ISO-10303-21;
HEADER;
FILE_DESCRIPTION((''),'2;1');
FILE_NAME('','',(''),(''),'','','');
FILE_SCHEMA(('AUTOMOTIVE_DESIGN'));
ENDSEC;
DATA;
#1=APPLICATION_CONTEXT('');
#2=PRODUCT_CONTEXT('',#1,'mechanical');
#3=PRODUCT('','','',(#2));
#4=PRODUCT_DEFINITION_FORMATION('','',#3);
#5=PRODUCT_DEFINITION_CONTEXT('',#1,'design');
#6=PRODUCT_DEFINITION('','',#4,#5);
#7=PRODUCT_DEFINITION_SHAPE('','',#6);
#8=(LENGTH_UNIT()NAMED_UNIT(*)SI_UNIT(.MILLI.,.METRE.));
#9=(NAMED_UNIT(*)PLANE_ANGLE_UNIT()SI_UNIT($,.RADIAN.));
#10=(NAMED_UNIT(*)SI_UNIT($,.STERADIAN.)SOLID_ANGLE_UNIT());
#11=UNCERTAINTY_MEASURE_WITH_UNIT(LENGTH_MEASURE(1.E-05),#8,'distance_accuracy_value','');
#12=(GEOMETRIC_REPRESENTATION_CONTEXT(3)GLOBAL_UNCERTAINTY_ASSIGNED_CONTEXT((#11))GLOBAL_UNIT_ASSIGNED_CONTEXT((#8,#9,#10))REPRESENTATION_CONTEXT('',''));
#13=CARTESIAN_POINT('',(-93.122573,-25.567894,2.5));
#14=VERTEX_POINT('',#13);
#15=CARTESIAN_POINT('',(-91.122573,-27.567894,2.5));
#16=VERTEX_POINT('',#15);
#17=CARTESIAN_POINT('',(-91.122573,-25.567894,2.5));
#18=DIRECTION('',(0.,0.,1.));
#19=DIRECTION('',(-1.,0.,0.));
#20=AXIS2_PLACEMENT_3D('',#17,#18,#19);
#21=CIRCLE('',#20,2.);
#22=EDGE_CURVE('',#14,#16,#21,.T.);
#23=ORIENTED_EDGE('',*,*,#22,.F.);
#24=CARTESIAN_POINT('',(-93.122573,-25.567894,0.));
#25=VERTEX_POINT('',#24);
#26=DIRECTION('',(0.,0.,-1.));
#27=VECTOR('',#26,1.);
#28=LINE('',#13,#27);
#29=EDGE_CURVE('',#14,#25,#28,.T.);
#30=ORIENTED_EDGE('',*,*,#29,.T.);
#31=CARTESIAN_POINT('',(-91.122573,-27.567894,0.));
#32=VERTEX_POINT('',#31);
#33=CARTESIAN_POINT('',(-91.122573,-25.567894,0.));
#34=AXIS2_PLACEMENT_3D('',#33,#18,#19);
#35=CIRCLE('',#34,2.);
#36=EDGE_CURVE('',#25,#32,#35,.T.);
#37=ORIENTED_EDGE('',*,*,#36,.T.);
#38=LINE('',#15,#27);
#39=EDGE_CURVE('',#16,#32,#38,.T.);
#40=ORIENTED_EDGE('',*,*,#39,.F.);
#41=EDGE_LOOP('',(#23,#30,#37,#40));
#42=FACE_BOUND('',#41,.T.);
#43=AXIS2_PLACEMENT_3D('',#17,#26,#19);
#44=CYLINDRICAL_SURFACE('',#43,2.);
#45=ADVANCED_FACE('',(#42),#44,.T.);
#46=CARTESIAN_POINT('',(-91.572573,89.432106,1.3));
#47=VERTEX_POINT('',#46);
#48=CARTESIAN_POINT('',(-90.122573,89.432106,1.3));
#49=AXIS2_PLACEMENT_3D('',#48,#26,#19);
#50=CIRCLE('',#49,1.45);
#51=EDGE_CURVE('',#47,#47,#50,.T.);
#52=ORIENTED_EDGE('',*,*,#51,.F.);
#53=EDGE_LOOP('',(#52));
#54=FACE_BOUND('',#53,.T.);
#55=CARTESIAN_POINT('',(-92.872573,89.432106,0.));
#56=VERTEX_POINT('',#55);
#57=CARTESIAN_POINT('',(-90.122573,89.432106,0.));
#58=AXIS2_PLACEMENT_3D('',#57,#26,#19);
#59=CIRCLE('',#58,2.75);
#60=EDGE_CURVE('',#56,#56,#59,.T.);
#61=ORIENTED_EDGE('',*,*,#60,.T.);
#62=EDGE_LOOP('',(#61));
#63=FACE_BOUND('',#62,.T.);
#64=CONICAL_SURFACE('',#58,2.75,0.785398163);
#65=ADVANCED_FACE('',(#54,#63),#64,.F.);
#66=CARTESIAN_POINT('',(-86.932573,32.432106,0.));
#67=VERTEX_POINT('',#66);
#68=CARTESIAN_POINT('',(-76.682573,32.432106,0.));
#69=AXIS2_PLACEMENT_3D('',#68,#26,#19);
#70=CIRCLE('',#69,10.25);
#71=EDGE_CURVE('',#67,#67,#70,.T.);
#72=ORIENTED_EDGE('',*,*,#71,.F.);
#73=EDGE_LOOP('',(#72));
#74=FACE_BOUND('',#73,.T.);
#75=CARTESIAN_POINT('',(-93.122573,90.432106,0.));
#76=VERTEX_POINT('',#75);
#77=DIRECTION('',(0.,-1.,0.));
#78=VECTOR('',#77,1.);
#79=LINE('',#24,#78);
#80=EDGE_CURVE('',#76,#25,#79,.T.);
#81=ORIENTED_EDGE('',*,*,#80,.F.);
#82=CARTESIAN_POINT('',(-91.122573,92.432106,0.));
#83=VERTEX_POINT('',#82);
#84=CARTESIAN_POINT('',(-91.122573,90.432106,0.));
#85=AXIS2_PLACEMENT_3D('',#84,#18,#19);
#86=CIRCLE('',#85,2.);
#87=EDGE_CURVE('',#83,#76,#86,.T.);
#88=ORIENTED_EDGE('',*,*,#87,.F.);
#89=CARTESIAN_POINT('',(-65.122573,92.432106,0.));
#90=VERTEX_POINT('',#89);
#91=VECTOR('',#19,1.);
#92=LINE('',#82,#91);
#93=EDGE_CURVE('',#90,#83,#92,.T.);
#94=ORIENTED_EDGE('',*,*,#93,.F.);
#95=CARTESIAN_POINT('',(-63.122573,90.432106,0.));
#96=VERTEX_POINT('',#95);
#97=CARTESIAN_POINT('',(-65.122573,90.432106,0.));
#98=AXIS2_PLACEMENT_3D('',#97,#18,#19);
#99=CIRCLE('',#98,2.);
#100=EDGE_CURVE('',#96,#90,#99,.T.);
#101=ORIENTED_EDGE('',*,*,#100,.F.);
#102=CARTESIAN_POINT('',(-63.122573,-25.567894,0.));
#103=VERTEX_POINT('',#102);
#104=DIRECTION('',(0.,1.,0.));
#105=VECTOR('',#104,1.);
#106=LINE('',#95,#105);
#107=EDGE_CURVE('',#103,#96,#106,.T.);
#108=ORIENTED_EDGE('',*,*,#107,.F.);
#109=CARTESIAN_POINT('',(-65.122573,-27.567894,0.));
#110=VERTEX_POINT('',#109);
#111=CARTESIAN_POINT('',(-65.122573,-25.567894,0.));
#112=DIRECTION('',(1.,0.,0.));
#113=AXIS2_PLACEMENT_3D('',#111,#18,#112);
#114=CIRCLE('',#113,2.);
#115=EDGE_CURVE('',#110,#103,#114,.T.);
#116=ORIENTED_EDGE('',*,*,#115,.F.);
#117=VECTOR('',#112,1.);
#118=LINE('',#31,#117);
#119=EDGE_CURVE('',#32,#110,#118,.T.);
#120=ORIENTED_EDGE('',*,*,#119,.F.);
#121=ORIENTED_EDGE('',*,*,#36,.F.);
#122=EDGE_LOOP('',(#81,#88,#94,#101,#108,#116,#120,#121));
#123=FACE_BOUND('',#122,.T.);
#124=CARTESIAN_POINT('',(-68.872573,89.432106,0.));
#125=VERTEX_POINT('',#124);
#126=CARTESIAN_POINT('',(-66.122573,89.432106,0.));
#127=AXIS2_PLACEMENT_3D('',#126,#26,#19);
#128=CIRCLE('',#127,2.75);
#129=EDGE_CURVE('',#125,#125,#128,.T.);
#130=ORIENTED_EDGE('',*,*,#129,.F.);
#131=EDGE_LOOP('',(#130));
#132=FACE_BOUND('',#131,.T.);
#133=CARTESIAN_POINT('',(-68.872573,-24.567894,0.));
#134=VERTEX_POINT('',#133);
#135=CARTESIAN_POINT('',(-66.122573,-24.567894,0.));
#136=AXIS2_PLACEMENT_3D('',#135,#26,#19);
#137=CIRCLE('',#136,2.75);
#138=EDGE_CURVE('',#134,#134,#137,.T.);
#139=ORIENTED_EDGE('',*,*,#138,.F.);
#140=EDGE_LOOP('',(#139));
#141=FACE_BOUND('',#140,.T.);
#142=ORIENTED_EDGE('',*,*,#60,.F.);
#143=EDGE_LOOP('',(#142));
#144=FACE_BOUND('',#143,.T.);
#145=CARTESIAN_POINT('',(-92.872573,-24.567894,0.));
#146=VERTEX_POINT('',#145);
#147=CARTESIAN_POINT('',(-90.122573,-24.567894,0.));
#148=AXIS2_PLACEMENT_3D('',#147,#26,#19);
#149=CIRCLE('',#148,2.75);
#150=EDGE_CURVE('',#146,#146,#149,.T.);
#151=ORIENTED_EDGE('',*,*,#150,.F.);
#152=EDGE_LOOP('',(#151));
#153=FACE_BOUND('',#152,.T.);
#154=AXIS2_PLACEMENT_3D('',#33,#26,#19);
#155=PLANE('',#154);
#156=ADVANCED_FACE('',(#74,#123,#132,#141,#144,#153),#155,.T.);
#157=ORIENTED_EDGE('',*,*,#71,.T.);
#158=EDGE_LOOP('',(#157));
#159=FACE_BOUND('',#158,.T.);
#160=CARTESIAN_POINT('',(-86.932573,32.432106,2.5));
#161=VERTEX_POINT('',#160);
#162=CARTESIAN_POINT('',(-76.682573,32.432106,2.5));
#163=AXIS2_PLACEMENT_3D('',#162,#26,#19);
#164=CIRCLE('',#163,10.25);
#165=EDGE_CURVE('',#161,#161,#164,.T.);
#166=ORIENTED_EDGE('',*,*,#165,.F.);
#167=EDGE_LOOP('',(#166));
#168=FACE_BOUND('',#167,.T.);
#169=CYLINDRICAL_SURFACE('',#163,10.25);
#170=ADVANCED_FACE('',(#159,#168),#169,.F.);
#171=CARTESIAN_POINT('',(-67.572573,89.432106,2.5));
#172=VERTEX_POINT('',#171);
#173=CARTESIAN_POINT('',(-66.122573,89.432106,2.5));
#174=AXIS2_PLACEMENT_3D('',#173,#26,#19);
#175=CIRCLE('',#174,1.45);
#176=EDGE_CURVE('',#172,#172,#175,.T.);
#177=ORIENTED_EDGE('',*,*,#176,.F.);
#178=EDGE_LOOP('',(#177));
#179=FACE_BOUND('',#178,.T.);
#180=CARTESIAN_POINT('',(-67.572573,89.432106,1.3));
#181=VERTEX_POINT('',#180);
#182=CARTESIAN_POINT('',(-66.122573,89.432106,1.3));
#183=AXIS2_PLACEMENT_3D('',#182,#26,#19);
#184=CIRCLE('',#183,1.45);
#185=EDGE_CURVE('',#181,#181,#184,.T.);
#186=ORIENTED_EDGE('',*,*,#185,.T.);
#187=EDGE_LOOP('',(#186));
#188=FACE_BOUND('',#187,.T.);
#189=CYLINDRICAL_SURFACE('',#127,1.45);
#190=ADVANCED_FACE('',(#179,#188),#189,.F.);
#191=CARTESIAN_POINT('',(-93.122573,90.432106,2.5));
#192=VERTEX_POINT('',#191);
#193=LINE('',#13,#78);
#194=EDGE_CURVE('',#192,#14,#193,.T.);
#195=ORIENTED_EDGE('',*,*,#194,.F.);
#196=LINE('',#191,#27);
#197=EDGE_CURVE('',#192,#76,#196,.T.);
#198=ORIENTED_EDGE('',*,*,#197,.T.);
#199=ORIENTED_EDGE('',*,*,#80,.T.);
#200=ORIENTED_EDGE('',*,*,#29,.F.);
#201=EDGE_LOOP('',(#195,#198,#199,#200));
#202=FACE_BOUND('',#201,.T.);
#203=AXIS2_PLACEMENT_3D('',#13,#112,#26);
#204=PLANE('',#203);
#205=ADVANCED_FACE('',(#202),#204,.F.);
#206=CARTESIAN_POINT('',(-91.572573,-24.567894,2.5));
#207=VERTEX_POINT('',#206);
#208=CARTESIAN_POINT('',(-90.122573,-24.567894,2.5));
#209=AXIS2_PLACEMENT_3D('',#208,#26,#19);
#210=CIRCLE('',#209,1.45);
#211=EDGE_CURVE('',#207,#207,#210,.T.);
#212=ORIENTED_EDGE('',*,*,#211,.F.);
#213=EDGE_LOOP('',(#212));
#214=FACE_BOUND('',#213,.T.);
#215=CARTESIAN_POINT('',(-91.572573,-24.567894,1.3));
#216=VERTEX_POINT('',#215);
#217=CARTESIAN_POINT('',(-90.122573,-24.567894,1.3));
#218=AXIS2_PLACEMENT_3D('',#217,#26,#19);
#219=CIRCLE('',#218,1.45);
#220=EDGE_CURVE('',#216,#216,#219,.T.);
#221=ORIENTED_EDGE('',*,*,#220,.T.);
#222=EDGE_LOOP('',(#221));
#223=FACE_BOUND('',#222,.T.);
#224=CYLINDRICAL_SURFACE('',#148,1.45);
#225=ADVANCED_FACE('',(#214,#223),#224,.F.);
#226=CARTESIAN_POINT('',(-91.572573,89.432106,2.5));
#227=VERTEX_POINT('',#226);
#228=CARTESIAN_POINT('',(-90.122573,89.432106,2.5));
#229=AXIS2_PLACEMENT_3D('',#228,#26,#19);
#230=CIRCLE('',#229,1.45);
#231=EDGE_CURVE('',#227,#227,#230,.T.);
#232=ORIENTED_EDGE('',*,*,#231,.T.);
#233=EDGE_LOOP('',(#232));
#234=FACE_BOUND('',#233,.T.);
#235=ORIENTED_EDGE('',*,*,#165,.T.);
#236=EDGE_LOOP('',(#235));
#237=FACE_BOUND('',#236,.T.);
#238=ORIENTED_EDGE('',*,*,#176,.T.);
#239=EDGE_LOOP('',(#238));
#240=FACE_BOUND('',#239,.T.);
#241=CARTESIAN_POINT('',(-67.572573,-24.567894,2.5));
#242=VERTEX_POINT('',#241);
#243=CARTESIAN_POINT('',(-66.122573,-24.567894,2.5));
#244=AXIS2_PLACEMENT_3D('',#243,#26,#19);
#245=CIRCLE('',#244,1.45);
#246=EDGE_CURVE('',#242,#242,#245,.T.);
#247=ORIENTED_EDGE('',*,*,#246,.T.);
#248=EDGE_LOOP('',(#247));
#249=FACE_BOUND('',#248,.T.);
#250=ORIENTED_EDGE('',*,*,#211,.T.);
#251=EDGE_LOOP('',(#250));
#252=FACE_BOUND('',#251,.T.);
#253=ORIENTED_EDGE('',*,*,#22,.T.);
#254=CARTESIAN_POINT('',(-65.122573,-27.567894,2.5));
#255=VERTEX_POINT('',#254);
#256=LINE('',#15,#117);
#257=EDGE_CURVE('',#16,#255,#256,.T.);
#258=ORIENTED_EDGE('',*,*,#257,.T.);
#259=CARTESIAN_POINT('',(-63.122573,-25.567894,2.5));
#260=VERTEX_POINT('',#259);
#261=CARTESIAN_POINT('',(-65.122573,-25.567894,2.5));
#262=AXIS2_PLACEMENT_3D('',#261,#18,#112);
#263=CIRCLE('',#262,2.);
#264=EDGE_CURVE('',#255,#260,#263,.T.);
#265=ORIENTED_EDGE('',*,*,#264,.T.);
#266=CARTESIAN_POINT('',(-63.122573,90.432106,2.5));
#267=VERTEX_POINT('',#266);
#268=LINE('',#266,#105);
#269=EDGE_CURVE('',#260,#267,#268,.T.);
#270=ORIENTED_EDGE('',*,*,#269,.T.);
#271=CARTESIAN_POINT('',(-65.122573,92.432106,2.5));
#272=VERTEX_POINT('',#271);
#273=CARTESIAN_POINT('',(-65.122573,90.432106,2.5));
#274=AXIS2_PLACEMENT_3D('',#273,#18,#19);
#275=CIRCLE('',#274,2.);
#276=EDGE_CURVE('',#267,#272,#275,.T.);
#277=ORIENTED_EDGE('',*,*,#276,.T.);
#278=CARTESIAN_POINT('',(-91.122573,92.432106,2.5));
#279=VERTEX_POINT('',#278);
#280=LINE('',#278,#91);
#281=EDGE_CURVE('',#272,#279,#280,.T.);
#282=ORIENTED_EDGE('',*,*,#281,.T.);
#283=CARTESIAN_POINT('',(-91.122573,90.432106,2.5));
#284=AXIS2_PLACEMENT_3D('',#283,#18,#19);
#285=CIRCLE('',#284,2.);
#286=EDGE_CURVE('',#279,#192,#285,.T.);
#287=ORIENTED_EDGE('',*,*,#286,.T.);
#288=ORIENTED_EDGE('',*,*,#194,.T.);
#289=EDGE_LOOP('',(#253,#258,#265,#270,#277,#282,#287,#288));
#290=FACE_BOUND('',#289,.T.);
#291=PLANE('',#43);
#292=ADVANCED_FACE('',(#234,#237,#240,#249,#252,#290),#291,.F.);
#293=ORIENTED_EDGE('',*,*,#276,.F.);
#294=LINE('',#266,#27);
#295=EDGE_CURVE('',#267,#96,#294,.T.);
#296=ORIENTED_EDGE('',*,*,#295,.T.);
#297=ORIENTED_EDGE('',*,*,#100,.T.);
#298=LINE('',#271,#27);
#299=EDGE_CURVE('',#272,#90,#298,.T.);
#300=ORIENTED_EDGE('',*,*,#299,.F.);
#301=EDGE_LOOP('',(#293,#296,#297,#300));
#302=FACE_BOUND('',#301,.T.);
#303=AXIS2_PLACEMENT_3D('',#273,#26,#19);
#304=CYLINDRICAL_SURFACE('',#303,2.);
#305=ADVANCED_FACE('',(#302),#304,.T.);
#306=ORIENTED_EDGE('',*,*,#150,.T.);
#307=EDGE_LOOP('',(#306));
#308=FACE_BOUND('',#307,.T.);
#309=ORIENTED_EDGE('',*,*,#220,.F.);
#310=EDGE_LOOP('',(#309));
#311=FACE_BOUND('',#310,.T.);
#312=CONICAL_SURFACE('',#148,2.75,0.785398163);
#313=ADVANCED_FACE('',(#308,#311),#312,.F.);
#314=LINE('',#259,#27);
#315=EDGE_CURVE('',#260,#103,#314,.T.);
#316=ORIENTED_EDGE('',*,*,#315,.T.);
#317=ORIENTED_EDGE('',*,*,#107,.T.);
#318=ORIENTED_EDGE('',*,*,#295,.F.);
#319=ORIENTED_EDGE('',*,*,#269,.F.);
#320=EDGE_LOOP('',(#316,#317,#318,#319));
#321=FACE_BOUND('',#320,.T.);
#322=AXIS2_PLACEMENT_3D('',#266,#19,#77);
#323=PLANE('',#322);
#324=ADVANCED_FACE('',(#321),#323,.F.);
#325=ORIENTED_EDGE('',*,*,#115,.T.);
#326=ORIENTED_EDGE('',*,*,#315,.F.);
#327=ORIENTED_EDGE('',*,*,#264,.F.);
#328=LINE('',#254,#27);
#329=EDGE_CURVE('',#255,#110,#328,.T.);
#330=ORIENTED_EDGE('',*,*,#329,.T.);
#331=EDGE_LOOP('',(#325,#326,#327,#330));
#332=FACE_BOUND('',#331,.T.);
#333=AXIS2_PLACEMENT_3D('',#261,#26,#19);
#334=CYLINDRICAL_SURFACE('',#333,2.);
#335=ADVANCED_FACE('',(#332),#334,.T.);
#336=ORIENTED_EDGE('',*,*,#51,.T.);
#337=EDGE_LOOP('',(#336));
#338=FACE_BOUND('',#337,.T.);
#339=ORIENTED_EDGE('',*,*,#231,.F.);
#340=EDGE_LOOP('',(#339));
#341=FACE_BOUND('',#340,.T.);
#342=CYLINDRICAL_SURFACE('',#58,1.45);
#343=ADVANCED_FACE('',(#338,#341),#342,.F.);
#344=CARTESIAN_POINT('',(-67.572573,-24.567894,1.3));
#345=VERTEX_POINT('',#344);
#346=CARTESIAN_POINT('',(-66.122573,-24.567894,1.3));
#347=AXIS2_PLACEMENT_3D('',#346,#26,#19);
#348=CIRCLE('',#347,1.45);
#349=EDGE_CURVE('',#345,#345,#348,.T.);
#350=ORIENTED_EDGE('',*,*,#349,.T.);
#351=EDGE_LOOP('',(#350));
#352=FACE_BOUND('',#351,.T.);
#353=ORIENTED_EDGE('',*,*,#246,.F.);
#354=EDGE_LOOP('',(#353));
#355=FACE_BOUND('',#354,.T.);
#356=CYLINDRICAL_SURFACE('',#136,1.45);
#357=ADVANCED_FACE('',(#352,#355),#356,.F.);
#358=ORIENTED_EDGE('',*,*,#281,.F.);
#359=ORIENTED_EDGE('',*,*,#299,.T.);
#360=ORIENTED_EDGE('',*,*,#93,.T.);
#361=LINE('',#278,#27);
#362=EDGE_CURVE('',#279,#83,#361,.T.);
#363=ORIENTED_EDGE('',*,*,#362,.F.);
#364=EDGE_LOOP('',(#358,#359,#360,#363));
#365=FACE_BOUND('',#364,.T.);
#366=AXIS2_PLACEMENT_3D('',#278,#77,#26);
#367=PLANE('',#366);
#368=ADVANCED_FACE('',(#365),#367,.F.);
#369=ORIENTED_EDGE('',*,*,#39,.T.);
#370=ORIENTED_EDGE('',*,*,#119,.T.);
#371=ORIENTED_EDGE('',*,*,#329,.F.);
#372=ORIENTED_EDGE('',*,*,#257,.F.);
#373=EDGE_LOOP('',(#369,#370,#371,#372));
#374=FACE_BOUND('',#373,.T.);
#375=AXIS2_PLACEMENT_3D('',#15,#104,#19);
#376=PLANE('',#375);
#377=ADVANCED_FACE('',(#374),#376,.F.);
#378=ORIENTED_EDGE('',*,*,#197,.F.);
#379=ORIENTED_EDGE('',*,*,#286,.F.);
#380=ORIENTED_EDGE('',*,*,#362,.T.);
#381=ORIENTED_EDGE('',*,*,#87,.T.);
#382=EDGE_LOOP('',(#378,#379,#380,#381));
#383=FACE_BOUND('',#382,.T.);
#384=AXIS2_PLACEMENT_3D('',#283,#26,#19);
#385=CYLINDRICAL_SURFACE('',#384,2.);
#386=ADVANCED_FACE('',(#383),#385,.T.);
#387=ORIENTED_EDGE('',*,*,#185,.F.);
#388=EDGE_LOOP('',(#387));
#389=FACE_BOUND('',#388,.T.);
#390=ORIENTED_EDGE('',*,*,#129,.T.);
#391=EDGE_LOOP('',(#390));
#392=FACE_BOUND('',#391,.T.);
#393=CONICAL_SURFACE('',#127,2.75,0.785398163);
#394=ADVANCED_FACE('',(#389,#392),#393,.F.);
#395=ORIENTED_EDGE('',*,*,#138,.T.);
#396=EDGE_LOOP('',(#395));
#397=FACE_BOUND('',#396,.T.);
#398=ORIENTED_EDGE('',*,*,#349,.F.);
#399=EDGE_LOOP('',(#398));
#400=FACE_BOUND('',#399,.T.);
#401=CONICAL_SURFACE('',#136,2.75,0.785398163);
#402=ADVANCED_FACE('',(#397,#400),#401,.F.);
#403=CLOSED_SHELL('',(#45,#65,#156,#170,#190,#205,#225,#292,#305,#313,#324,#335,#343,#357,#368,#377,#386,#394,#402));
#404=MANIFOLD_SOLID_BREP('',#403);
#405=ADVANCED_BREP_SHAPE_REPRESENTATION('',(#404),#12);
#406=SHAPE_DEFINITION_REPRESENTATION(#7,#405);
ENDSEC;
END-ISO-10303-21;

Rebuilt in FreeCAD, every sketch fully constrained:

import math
import FreeCAD as App
import Part
import Sketcher

V = App.Vector
Q = App.Units.Quantity

doc = App.newDocument("Part")
body = doc.addObject("PartDesign::Body", "Body")

# Sketch on XY plane
sketch1 = doc.addObject("Sketcher::SketchObject", "Sketch")
body.addObject(sketch1)
sketch1.AttachmentSupport = (doc.XY_Plane, [""])
sketch1.MapMode = "FlatFace"
sketch1.addGeometry([
    Part.LineSegment(V(-63.122573, -25.567894, 0), V(-63.122573, 90.432106, 0)),  # 0
    Part.ArcOfCircle(Part.Circle(V(-65.122573, 90.432106, 0), V(0, 0, 1), 2), math.radians(0), math.radians(90)),  # 1
    Part.LineSegment(V(-65.122573, 92.432106, 0), V(-91.122573, 92.432106, 0)),  # 2
    Part.ArcOfCircle(Part.Circle(V(-91.122573, 90.432106, 0), V(0, 0, 1), 2), math.radians(90), math.radians(180)),  # 3
    Part.LineSegment(V(-93.122573, 90.432106, 0), V(-93.122573, -25.567894, 0)),  # 4
    Part.ArcOfCircle(Part.Circle(V(-91.122573, -25.567894, 0), V(0, 0, 1), 2), math.radians(180), math.radians(270)),  # 5
    Part.LineSegment(V(-91.122573, -27.567894, 0), V(-65.122573, -27.567894, 0)),  # 6
    Part.ArcOfCircle(Part.Circle(V(-65.122573, -25.567894, 0), V(0, 0, 1), 2), math.radians(-90), math.radians(0)),  # 7
], False)
sketch1.addConstraint([
    Sketcher.Constraint("Tangent", 0, 2, 1, 1),
    Sketcher.Constraint("Tangent", 1, 2, 2, 1),
    Sketcher.Constraint("Tangent", 2, 2, 3, 1),
    Sketcher.Constraint("Tangent", 3, 2, 4, 1),
    Sketcher.Constraint("Tangent", 4, 2, 5, 1),
    Sketcher.Constraint("Tangent", 5, 2, 6, 1),
    Sketcher.Constraint("Tangent", 6, 2, 7, 1),
    Sketcher.Constraint("Tangent", 7, 2, 0, 1),
    Sketcher.Constraint("Vertical", 0),
    Sketcher.Constraint("Horizontal", 2),
    Sketcher.Constraint("Vertical", 4),
    Sketcher.Constraint("Horizontal", 6),
    Sketcher.Constraint("Equal", 1, 3),
    Sketcher.Constraint("Equal", 3, 5),
    Sketcher.Constraint("Equal", 5, 7),
    Sketcher.Constraint("Radius", 1, Q("2 mm")),
    Sketcher.Constraint("DistanceX", 2, 2, 2, 1, Q("26 mm")),
    Sketcher.Constraint("DistanceY", 0, 1, 0, 2, Q("116 mm")),
    Sketcher.Constraint("DistanceX", 1, 3, -1, 1, Q("65.122573 mm")),
    Sketcher.Constraint("DistanceY", -1, 1, 1, 3, Q("90.432106 mm")),
])
pad1 = doc.addObject("PartDesign::Pad", "Pad")
body.addObject(pad1)
pad1.Profile = sketch1
pad1.Length = 2.5

# Sketch on YZ plane
sketch2 = doc.addObject("Sketcher::SketchObject", "Sketch001")
body.addObject(sketch2)
sketch2.AttachmentSupport = (doc.YZ_Plane, [""])
sketch2.MapMode = "FlatFace"
sketch2.AttachmentOffset = App.Placement(V(0, 0, -66.122573), App.Rotation())
sketch2.addGeometry([
    Part.LineSegment(V(89.432106, 2.5, 0), V(89.432106, 0, 0)),  # 0
    Part.LineSegment(V(89.432106, 0, 0), V(92.182106, 0, 0)),  # 1
    Part.LineSegment(V(92.182106, 0, 0), V(90.882106, 1.3, 0)),  # 2
    Part.LineSegment(V(90.882106, 1.3, 0), V(90.882106, 2.5, 0)),  # 3
    Part.LineSegment(V(90.882106, 2.5, 0), V(89.432106, 2.5, 0)),  # 4
], False)
sketch2.addGeometry(Part.LineSegment(V(89.432106, 0, 0), V(89.432106, 2.5, 0)), True)  # axis
sketch2.addConstraint([
    Sketcher.Constraint("Coincident", 0, 2, 1, 1),
    Sketcher.Constraint("Coincident", 1, 2, 2, 1),
    Sketcher.Constraint("Coincident", 2, 2, 3, 1),
    Sketcher.Constraint("Coincident", 3, 2, 4, 1),
    Sketcher.Constraint("Coincident", 4, 2, 0, 1),
    Sketcher.Constraint("Vertical", 0),
    Sketcher.Constraint("Horizontal", 1),
    Sketcher.Constraint("Vertical", 3),
    Sketcher.Constraint("Horizontal", 4),
    Sketcher.Constraint("Vertical", 5),
    Sketcher.Constraint("Coincident", 5, 1, 0, 2),
    Sketcher.Constraint("PointOnObject", 0, 2, -1),
    Sketcher.Constraint("Horizontal", 3, 2, 5, 2),
    Sketcher.Constraint("Angle", 2, Q("135 deg")),
    Sketcher.Constraint("DistanceY", 0, 2, 0, 1, Q("2.5 mm")),
    Sketcher.Constraint("DistanceY", 3, 1, 3, 2, Q("1.2 mm")),
    Sketcher.Constraint("DistanceX", 1, 1, 1, 2, Q("2.75 mm")),
    Sketcher.Constraint("DistanceX", -1, 1, 0, 2, Q("89.432106 mm")),
])
groove = doc.addObject("PartDesign::Groove", "Groove")
body.addObject(groove)
groove.Profile = sketch2
groove.ReferenceAxis = (sketch2, ["Axis0"])
groove.Angle = 360
doc.recompute()

linearpattern = doc.addObject("PartDesign::LinearPattern", "LinearPattern")
body.addObject(linearpattern)
linearpattern.Originals = [groove]
linearpattern.Direction = (doc.X_Axis, [""])
linearpattern.Mode = "offset"
linearpattern.Offset = 24
linearpattern.Occurrences = 2
linearpattern.Reversed = True
body.Tip = linearpattern
doc.recompute()

linearpattern2 = doc.addObject("PartDesign::LinearPattern", "LinearPattern001")
body.addObject(linearpattern2)
linearpattern2.Originals = [groove]
linearpattern2.Direction = (doc.Y_Axis, [""])
linearpattern2.Mode = "offset"
linearpattern2.Offset = 114
linearpattern2.Occurrences = 2
linearpattern2.Reversed = True
body.Tip = linearpattern2
doc.recompute()

datumline = doc.addObject("PartDesign::Line", "DatumLine")
body.addObject(datumline)
datumline.Placement = App.Placement(V(0, 0, 0), App.Rotation(V(0, 0, 1), V(-0.206010481, -0.978549785, 0)))
linearpattern3 = doc.addObject("PartDesign::LinearPattern", "LinearPattern002")
body.addObject(linearpattern3)
linearpattern3.Originals = [groove]
linearpattern3.Direction = (datumline, [""])
linearpattern3.Mode = "offset"
linearpattern3.Offset = 116.498927
linearpattern3.Occurrences = 2
body.Tip = linearpattern3

# Sketch on XY plane
sketch3 = doc.addObject("Sketcher::SketchObject", "Sketch002")
body.addObject(sketch3)
sketch3.AttachmentSupport = (doc.XY_Plane, [""])
sketch3.MapMode = "FlatFace"
sketch3.addGeometry(Part.Circle(V(-76.682573, 32.432106, 0), V(0, 0, 1), 10.25), False)
sketch3.addConstraint([
    Sketcher.Constraint("Diameter", 0, Q("20.5 mm")),
    Sketcher.Constraint("DistanceX", 0, 3, -1, 1, Q("76.682573 mm")),
    Sketcher.Constraint("DistanceY", -1, 1, 0, 3, Q("32.432106 mm")),
])
pocket1 = doc.addObject("PartDesign::Pocket", "Pocket")
body.addObject(pocket1)
pocket1.Profile = sketch3
pocket1.Type = "ThroughAll"
pocket1.Reversed = True

doc.recompute()
